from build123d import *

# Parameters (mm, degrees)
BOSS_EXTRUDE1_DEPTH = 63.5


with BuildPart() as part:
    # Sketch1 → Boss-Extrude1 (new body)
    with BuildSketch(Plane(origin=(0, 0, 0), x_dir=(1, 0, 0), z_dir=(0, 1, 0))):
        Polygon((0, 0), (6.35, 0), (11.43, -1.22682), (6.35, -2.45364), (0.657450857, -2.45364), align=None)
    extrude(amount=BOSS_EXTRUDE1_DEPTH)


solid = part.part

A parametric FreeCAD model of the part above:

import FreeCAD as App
import Part
import Sketcher

V = App.Vector
Q = App.Units.Quantity


def add_polygon(sketch, points):
    """Adds a closed chain of lines whose ends are joined by coincident constraints."""
    first, n = sketch.GeometryCount, len(points)
    for a, b in zip(points, points[1:] + points[:1]):
        sketch.addGeometry(Part.LineSegment(App.Vector(*a, 0), App.Vector(*b, 0)), False)
    for i in range(n):
        sketch.addConstraint(Sketcher.Constraint("Coincident", first + i, 2, first + (i + 1) % n, 1))

doc = App.newDocument("Part")
body = doc.addObject("PartDesign::Body", "Body")

# Sketch on XZ plane
sketch1 = doc.addObject("Sketcher::SketchObject", "Sketch")
body.addObject(sketch1)
sketch1.AttachmentSupport = (doc.XZ_Plane, [""])
sketch1.MapMode = "FlatFace"
add_polygon(sketch1, [(6.3, 0), (0, 0), (0.7, 2.5), (6.3, 2.5), (11.4, 1.2)])  # lines 0-4
sketch1.addConstraint(Sketcher.Constraint("Horizontal", 0))
sketch1.addConstraint(Sketcher.Constraint("Horizontal", 2))
sketch1.addConstraint(Sketcher.Constraint("Coincident", 0, 2, -1, 1))
sketch1.addConstraint(Sketcher.Constraint("Vertical", 2, 2, 4, 2))
sketch1.addConstraint(Sketcher.Constraint("Equal", 3, 4))
sketch1.addConstraint(Sketcher.Constraint("Angle", 1, Q("75 deg")))
sketch1.addConstraint(Sketcher.Constraint("DistanceX", 0, 2, 0, 1, Q("0.25 in")))
sketch1.addConstraint(Sketcher.Constraint("DistanceX", 2, 2, 3, 2, Q("0.2 in")))
sketch1.addConstraint(Sketcher.Constraint("DistanceY", -1, 1, 1, 2, Q("0.0966 in")))
pad1 = doc.addObject("PartDesign::Pad", "Pad")
body.addObject(pad1)
pad1.Profile = sketch1
pad1.Length = Q("2.5 in")
pad1.Reversed = True

doc.recompute()
